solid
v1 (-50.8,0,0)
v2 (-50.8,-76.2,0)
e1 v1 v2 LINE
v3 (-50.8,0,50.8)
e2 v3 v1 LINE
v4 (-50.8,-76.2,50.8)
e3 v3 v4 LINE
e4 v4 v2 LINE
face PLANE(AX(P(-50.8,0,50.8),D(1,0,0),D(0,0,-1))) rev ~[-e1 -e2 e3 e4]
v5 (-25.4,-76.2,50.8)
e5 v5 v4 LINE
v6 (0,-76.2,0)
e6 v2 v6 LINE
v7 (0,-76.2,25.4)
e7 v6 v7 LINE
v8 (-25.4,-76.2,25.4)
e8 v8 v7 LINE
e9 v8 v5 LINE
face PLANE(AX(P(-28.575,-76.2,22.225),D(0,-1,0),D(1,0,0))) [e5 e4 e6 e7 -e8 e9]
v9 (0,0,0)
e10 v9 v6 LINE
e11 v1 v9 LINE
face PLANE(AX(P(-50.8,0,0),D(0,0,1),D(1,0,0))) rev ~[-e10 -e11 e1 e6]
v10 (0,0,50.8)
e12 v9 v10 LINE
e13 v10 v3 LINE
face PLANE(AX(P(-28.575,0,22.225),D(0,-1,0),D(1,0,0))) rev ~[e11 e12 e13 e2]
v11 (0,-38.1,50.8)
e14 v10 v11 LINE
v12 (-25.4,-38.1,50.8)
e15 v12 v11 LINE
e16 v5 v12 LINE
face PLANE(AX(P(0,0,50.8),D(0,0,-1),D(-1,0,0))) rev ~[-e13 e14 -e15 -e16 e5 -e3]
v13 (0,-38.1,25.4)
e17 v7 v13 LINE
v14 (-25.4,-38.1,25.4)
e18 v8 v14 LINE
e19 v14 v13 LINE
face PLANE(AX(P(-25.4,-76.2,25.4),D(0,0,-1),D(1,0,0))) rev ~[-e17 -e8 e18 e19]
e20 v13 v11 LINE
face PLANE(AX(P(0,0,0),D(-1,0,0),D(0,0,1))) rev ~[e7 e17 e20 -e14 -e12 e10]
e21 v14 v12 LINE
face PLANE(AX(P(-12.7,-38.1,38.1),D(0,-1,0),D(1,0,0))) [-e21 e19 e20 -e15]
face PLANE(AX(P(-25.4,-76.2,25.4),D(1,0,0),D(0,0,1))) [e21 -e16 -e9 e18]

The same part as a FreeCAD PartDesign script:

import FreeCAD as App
import Part
import Sketcher

V = App.Vector
Q = App.Units.Quantity


def add_polygon(sketch, points):
    """Adds a closed chain of lines whose ends are joined by coincident constraints."""
    first, n = sketch.GeometryCount, len(points)
    for a, b in zip(points, points[1:] + points[:1]):
        sketch.addGeometry(Part.LineSegment(App.Vector(*a, 0), App.Vector(*b, 0)), False)
    for i in range(n):
        sketch.addConstraint(Sketcher.Constraint("Coincident", first + i, 2, first + (i + 1) % n, 1))

doc = App.newDocument("Part")
params = doc.addObject("Spreadsheet::Sheet", "Params")
for row, (alias, value) in enumerate([
    ("sketch1_width", "2 in"),
    ("pad1_length", "3 in"),
    ("sketch2_width", "1 in"),
    ("pocket1_length", "1.5 in"),
], start=1):
    params.set(f"A{row}", alias)
    params.set(f"B{row}", "=" + value)
    params.setAlias(f"B{row}", alias)

body = doc.addObject("PartDesign::Body", "Body")

sketch1 = doc.addObject("Sketcher::SketchObject", "Sketch")
body.addObject(sketch1)
sketch1.AttachmentSupport = (doc.XZ_Plane, [""])
sketch1.MapMode = "FlatFace"
add_polygon(sketch1, [(-50.8, 0), (0, 0), (0, 50.8), (-50.8, 50.8)])
sketch1.addConstraint([
    Sketcher.Constraint("Horizontal", 0),
    Sketcher.Constraint("Vertical", 1),
    Sketcher.Constraint("Horizontal", 2),
    Sketcher.Constraint("Vertical", 3),
    Sketcher.Constraint("Coincident", 0, 2, -1, 1),
    Sketcher.Constraint("Equal", 2, 1),
    Sketcher.Constraint("DistanceX", 0, 1, 0, 2, Q("2 in")),
])
sketch1.setExpression("Constraints[10]", "Params.sketch1_width")
pad1 = doc.addObject("PartDesign::Pad", "Pad")
body.addObject(pad1)
pad1.Profile = sketch1
pad1.setExpression("Length", "Params.pad1_length")

sketch2 = doc.addObject("Sketcher::SketchObject", "Sketch001")
body.addObject(sketch2)
sketch2.AttachmentSupport = (doc.XZ_Plane, [""])
sketch2.MapMode = "FlatFace"
sketch2.AttachmentOffset = App.Placement(V(0, 0, 3 * 25.4), App.Rotation())
add_polygon(sketch2, [(-25.4, 50.8), (-25.4, 25.4), (0, 25.4), (0, 50.8)])
sketch2.addConstraint([
    Sketcher.Constraint("Vertical", 0),
    Sketcher.Constraint("Horizontal", 1),
    Sketcher.Constraint("Vertical", 2),
    Sketcher.Constraint("Horizontal", 3),
    Sketcher.Constraint("PointOnObject", 1, 2, -2),
    Sketcher.Constraint("Equal", 3, 0),
    Sketcher.Constraint("DistanceX", 1, 1, 1, 2, Q("1 in")),
    Sketcher.Constraint("DistanceY", -1, 1, 0, 2, Q("1 in")),
])
sketch2.setExpression("Constraints[10]", "Params.sketch2_width")
pocket1 = doc.addObject("PartDesign::Pocket", "Pocket")
body.addObject(pocket1)
pocket1.Profile = sketch2
pocket1.setExpression("Length", "Params.pocket1_length")

doc.recompute()
